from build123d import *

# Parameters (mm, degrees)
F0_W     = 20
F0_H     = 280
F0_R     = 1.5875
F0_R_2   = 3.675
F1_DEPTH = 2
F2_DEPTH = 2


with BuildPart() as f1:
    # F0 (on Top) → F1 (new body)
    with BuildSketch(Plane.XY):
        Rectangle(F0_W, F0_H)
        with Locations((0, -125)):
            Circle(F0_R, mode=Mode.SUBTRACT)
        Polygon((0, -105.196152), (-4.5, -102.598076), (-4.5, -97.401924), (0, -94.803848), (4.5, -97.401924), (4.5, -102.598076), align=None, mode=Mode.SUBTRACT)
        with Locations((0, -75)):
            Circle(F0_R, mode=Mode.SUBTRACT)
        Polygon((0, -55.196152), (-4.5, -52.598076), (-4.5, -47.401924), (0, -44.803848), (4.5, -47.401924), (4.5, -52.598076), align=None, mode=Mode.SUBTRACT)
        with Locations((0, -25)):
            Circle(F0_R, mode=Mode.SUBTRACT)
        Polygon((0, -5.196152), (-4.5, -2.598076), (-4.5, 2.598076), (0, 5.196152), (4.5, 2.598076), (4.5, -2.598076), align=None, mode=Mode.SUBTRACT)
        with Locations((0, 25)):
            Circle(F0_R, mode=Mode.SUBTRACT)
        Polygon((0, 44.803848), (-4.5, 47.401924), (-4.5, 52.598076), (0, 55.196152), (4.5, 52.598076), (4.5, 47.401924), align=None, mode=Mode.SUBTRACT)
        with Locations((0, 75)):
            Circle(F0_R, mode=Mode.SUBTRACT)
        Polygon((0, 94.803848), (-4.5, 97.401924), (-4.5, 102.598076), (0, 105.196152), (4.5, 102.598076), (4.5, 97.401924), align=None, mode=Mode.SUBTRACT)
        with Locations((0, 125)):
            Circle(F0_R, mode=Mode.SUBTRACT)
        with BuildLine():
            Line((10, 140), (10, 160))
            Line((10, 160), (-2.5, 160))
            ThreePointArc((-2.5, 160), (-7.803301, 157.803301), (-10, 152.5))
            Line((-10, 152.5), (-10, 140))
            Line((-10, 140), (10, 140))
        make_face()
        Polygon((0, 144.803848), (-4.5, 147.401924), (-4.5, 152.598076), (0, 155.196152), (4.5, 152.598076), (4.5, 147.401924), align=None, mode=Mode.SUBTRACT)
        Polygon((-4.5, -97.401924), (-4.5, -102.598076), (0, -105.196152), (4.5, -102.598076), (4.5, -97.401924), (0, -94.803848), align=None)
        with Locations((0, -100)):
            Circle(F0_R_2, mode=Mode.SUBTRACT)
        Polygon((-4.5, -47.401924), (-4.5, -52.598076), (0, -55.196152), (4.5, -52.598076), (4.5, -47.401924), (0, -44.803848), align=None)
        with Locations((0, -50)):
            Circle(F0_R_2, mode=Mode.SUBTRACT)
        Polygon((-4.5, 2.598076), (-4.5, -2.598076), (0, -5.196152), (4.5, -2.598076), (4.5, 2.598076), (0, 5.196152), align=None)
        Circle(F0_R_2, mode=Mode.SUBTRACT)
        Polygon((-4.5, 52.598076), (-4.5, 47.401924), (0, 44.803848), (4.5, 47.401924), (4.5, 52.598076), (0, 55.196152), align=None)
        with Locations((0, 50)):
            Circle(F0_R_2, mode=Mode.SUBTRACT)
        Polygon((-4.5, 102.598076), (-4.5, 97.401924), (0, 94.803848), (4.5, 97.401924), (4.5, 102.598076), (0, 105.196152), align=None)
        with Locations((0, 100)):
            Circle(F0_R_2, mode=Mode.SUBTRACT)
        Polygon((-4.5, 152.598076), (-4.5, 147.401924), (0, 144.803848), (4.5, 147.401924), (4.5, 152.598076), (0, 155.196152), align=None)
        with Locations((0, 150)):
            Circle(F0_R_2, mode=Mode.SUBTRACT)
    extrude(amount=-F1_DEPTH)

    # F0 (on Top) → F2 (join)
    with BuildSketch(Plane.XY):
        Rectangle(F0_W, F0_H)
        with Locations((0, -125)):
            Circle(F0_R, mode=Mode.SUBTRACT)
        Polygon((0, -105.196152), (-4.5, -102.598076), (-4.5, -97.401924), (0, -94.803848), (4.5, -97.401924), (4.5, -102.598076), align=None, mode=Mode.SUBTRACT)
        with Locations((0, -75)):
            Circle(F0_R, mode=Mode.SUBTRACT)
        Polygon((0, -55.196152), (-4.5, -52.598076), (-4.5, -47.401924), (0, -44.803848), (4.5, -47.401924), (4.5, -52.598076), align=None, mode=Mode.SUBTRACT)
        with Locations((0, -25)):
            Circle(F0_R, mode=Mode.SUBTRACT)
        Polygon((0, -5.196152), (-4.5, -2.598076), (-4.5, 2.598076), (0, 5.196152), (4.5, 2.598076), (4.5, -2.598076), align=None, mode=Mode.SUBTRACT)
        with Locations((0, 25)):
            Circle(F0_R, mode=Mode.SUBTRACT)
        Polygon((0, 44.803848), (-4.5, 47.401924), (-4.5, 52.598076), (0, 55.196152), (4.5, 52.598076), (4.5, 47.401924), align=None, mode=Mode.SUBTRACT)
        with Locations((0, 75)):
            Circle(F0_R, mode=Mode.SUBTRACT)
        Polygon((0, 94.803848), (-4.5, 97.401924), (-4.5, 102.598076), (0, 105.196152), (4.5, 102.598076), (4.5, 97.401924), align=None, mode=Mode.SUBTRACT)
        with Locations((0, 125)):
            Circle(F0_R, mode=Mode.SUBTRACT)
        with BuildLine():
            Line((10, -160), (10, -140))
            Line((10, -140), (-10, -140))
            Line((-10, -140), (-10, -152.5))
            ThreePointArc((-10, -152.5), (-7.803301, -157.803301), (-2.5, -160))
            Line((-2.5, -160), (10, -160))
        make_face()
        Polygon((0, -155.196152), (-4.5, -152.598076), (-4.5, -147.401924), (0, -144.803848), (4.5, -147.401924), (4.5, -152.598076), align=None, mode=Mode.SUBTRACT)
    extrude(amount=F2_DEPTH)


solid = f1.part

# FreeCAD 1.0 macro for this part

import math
import FreeCAD as App
import Part
import Sketcher

V = App.Vector
Q = App.Units.Quantity

doc = App.newDocument("Part")
body = doc.addObject("PartDesign::Body", "Body")

sketch1 = doc.addObject("Sketcher::SketchObject", "Sketch")
body.addObject(sketch1)
sketch1.AttachmentSupport = (doc.XY_Plane, [""])
sketch1.MapMode = "FlatFace"
sketch1.addGeometry([
    Part.LineSegment(V(-10, -140, 0), V(10, -140, 0)),
    Part.LineSegment(V(10, -140, 0), V(10, 160, 0)),
    Part.LineSegment(V(10, 160, 0), V(-2.5, 160, 0)),
    Part.ArcOfCircle(Part.Circle(V(-2.5, 152.5, 0), V(0, 0, 1), 7.5), math.radians(90), math.radians(180)),
    Part.LineSegment(V(-10, 152.5, 0), V(-10, -140, 0)),
    Part.Circle(V(0, -125, 0), V(0, 0, 1), 1.6),
    Part.Circle(V(0, -100, 0), V(0, 0, 1), 3.7),
    Part.Circle(V(0, -75, 0), V(0, 0, 1), 1.6),
    Part.Circle(V(0, -50, 0), V(0, 0, 1), 3.7),
    Part.Circle(V(0, -25, 0), V(0, 0, 1), 1.6),
    Part.Circle(V(0, 0, 0), V(0, 0, 1), 3.7),
    Part.Circle(V(0, 25, 0), V(0, 0, 1), 1.6),
    Part.Circle(V(0, 50, 0), V(0, 0, 1), 3.7),
    Part.Circle(V(0, 75, 0), V(0, 0, 1), 1.6),
    Part.Circle(V(0, 100, 0), V(0, 0, 1), 3.7),
    Part.Circle(V(0, 125, 0), V(0, 0, 1), 1.6),
    Part.Circle(V(0, 150, 0), V(0, 0, 1), 3.7),
], False)
sketch1.addConstraint([
    Sketcher.Constraint("Coincident", 0, 2, 1, 1),
    Sketcher.Constraint("Coincident", 1, 2, 2, 1),
    Sketcher.Constraint("Tangent", 2, 2, 3, 1),
    Sketcher.Constraint("Tangent", 3, 2, 4, 1),
    Sketcher.Constraint("Coincident", 4, 2, 0, 1),
    Sketcher.Constraint("Horizontal", 0),
    Sketcher.Constraint("Vertical", 1),
    Sketcher.Constraint("Horizontal", 2),
    Sketcher.Constraint("Vertical", 4),
    Sketcher.Constraint("Coincident", 10, 3, -1, 1),
    Sketcher.Constraint("Equal", 5, 7),
    Sketcher.Constraint("Equal", 6, 8),
    Sketcher.Constraint("Equal", 7, 9),
    Sketcher.Constraint("Equal", 8, 10),
    Sketcher.Constraint("Equal", 9, 11),
    Sketcher.Constraint("Equal", 10, 12),
    Sketcher.Constraint("Equal", 11, 13),
    Sketcher.Constraint("Equal", 12, 14),
    Sketcher.Constraint("Equal", 13, 15),
    Sketcher.Constraint("Equal", 14, 16),
    Sketcher.Constraint("Symmetric", 9, 3, 11, 3, -1, 1),
    Sketcher.Constraint("Symmetric", 8, 3, 12, 3, -1, 1),
    Sketcher.Constraint("Symmetric", 7, 3, 13, 3, -1, 1),
    Sketcher.Constraint("Symmetric", 6, 3, 14, 3, -1, 1),
    Sketcher.Constraint("Symmetric", 5, 3, 15, 3, -1, 1),
    Sketcher.Constraint("PointOnObject", 5, 3, -2),
    Sketcher.Constraint("PointOnObject", 6, 3, -2),
    Sketcher.Constraint("PointOnObject", 7, 3, -2),
    Sketcher.Constraint("PointOnObject", 8, 3, -2),
    Sketcher.Constraint("PointOnObject", 9, 3, -2),
    Sketcher.Constraint("PointOnObject", 16, 3, -2),
    Sketcher.Constraint("Radius", 3, Q("7.5 mm")),
    Sketcher.Constraint("Diameter", 6, Q("7.35 mm")),
    Sketcher.Constraint("DistanceX", 0, 1, 0, 2, Q("20 mm")),
    Sketcher.Constraint("DistanceY", 1, 1, 1, 2, Q("300 mm")),
    Sketcher.Constraint("Diameter", 5, Q("3.175 mm")),
    Sketcher.Constraint("DistanceY", 5, 3, -1, 1, Q("125 mm")),
    Sketcher.Constraint("DistanceY", 6, 3, -1, 1, Q("100 mm")),
    Sketcher.Constraint("DistanceY", 7, 3, -1, 1, Q("75 mm")),
    Sketcher.Constraint("DistanceY", 8, 3, -1, 1, Q("50 mm")),
    Sketcher.Constraint("DistanceY", 9, 3, -1, 1, Q("25 mm")),
    Sketcher.Constraint("DistanceY", -1, 1, 16, 3, Q("150 mm")),
    Sketcher.Constraint("DistanceX", -1, 1, 0, 2, Q("10 mm")),
    Sketcher.Constraint("DistanceY", 0, 2, -1, 1, Q("140 mm")),
])
pad1 = doc.addObject("PartDesign::Pad", "Pad")
body.addObject(pad1)
pad1.Profile = sketch1
pad1.Length = 2
pad1.Reversed = True

sketch2 = doc.addObject("Sketcher::SketchObject", "Sketch001")
body.addObject(sketch2)
sketch2.AttachmentSupport = (doc.XY_Plane, [""])
sketch2.MapMode = "FlatFace"
sketch2.addGeometry([
    Part.LineSegment(V(-10, 140, 0), V(-10, -152.5, 0)),
    Part.ArcOfCircle(Part.Circle(V(-2.5, -152.5, 0), V(0, 0, 1), 7.5), math.radians(180), math.radians(270)),
    Part.LineSegment(V(-2.5, -160, 0), V(10, -160, 0)),
    Part.LineSegment(V(10, -160, 0), V(10, 140, 0)),
    Part.LineSegment(V(10, 140, 0), V(-10, 140, 0)),
    Part.LineSegment(V(4.5, -152.6, 0), V(0, -155.2, 0)),
    Part.LineSegment(V(0, -155.2, 0), V(-4.5, -152.6, 0)),
    Part.LineSegment(V(-4.5, -152.6, 0), V(-4.5, -147.4, 0)),
    Part.LineSegment(V(-4.5, -147.4, 0), V(0, -144.8, 0)),
    Part.LineSegment(V(0, -144.8, 0), V(4.5, -147.4, 0)),
    Part.LineSegment(V(4.5, -147.4, 0), V(4.5, -152.6, 0)),
    Part.Circle(V(0, -125, 0), V(0, 0, 1), 1.6),
    Part.LineSegment(V(4.5, -102.6, 0), V(0, -105.2, 0)),
    Part.LineSegment(V(0, -105.2, 0), V(-4.5, -102.6, 0)),
    Part.LineSegment(V(-4.5, -102.6, 0), V(-4.5, -97.4, 0)),
    Part.LineSegment(V(-4.5, -97.4, 0), V(0, -94.8, 0)),
    Part.LineSegment(V(0, -94.8, 0), V(4.5, -97.4, 0)),
    Part.LineSegment(V(4.5, -97.4, 0), V(4.5, -102.6, 0)),
    Part.Circle(V(0, -75, 0), V(0, 0, 1), 1.6),
    Part.LineSegment(V(4.5, -52.6, 0), V(0, -55.2, 0)),
    Part.LineSegment(V(0, -55.2, 0), V(-4.5, -52.6, 0)),
    Part.LineSegment(V(-4.5, -52.6, 0), V(-4.5, -47.4, 0)),
    Part.LineSegment(V(-4.5, -47.4, 0), V(0, -44.8, 0)),
    Part.LineSegment(V(0, -44.8, 0), V(4.5, -47.4, 0)),
    Part.LineSegment(V(4.5, -47.4, 0), V(4.5, -52.6, 0)),
    Part.Circle(V(0, -25, 0), V(0, 0, 1), 1.6),
    Part.LineSegment(V(4.5, -2.6, 0), V(0, -5.2, 0)),
    Part.LineSegment(V(0, -5.2, 0), V(-4.5, -2.6, 0)),
    Part.LineSegment(V(-4.5, -2.6, 0), V(-4.5, 2.6, 0)),
    Part.LineSegment(V(-4.5, 2.6, 0), V(0, 5.2, 0)),
    Part.LineSegment(V(0, 5.2, 0), V(4.5, 2.6, 0)),
    Part.LineSegment(V(4.5, 2.6, 0), V(4.5, -2.6, 0)),
    Part.Circle(V(0, 25, 0), V(0, 0, 1), 1.6),
    Part.LineSegment(V(4.5, 47.4, 0), V(0, 44.8, 0)),
    Part.LineSegment(V(0, 44.8, 0), V(-4.5, 47.4, 0)),
    Part.LineSegment(V(-4.5, 47.4, 0), V(-4.5, 52.6, 0)),
    Part.LineSegment(V(-4.5, 52.6, 0), V(0, 55.2, 0)),
    Part.LineSegment(V(0, 55.2, 0), V(4.5, 52.6, 0)),
    Part.LineSegment(V(4.5, 52.6, 0), V(4.5, 47.4, 0)),
    Part.Circle(V(0, 75, 0), V(0, 0, 1), 1.6),
    Part.LineSegment(V(4.5, 97.4, 0), V(0, 94.8, 0)),
    Part.LineSegment(V(0, 94.8, 0), V(-4.5, 97.4, 0)),
    Part.LineSegment(V(-4.5, 97.4, 0), V(-4.5, 102.6, 0)),
    Part.LineSegment(V(-4.5, 102.6, 0), V(0, 105.2, 0)),
    Part.LineSegment(V(0, 105.2, 0), V(4.5, 102.6, 0)),
    Part.LineSegment(V(4.5, 102.6, 0), V(4.5, 97.4, 0)),
    Part.Circle(V(0, 125, 0), V(0, 0, 1), 1.6),
], False)
sketch2.addConstraint([
    Sketcher.Constraint("Tangent", 0, 2, 1, 1),
    Sketcher.Constraint("Tangent", 1, 2, 2, 1),
    Sketcher.Constraint("Coincident", 2, 2, 3, 1),
    Sketcher.Constraint("Coincident", 3, 2, 4, 1),
    Sketcher.Constraint("Coincident", 4, 2, 0, 1),
    Sketcher.Constraint("Coincident", 5, 2, 6, 1),
    Sketcher.Constraint("Coincident", 6, 2, 7, 1),
    Sketcher.Constraint("Coincident", 7, 2, 8, 1),
    Sketcher.Constraint("Coincident", 8, 2, 9, 1),
    Sketcher.Constraint("Coincident", 9, 2, 10, 1),
    Sketcher.Constraint("Coincident", 10, 2, 5, 1),
    Sketcher.Constraint("Coincident", 12, 2, 13, 1),
    Sketcher.Constraint("Coincident", 13, 2, 14, 1),
    Sketcher.Constraint("Coincident", 14, 2, 15, 1),
    Sketcher.Constraint("Coincident", 15, 2, 16, 1),
    Sketcher.Constraint("Coincident", 16, 2, 17, 1),
    Sketcher.Constraint("Coincident", 17, 2, 12, 1),
    Sketcher.Constraint("Coincident", 19, 2, 20, 1),
    Sketcher.Constraint("Coincident", 20, 2, 21, 1),
    Sketcher.Constraint("Coincident", 21, 2, 22, 1),
    Sketcher.Constraint("Coincident", 22, 2, 23, 1),
    Sketcher.Constraint("Coincident", 23, 2, 24, 1),
    Sketcher.Constraint("Coincident", 24, 2, 19, 1),
    Sketcher.Constraint("Coincident", 26, 2, 27, 1),
    Sketcher.Constraint("Coincident", 27, 2, 28, 1),
    Sketcher.Constraint("Coincident", 28, 2, 29, 1),
    Sketcher.Constraint("Coincident", 29, 2, 30, 1),
    Sketcher.Constraint("Coincident", 30, 2, 31, 1),
    Sketcher.Constraint("Coincident", 31, 2, 26, 1),
    Sketcher.Constraint("Coincident", 33, 2, 34, 1),
    Sketcher.Constraint("Coincident", 34, 2, 35, 1),
    Sketcher.Constraint("Coincident", 35, 2, 36, 1),
    Sketcher.Constraint("Coincident", 36, 2, 37, 1),
    Sketcher.Constraint("Coincident", 37, 2, 38, 1),
    Sketcher.Constraint("Coincident", 38, 2, 33, 1),
    Sketcher.Constraint("Coincident", 40, 2, 41, 1),
    Sketcher.Constraint("Coincident", 41, 2, 42, 1),
    Sketcher.Constraint("Coincident", 42, 2, 43, 1),
    Sketcher.Constraint("Coincident", 43, 2, 44, 1),
    Sketcher.Constraint("Coincident", 44, 2, 45, 1),
    Sketcher.Constraint("Coincident", 45, 2, 40, 1),
    Sketcher.Constraint("Vertical", 0),
    Sketcher.Constraint("Horizontal", 2),
    Sketcher.Constraint("Vertical", 3),
    Sketcher.Constraint("Horizontal", 4),
    Sketcher.Constraint("Vertical", 7),
    Sketcher.Constraint("Vertical", 10),
    Sketcher.Constraint("Vertical", 14),
    Sketcher.Constraint("Vertical", 17),
    Sketcher.Constraint("Vertical", 21),
    Sketcher.Constraint("Vertical", 24),
    Sketcher.Constraint("Vertical", 28),
    Sketcher.Constraint("Vertical", 31),
    Sketcher.Constraint("Vertical", 35),
    Sketcher.Constraint("Vertical", 38),
    Sketcher.Constraint("Vertical", 42),
    Sketcher.Constraint("Vertical", 45),
    Sketcher.Constraint("Equal", 11, 18),
    Sketcher.Constraint("Equal", 18, 25),
    Sketcher.Constraint("Equal", 25, 32),
    Sketcher.Constraint("Equal", 32, 39),
    Sketcher.Constraint("Equal", 39, 46),
    Sketcher.Constraint("Symmetric", 25, 3, 32, 3, -1, 1),
    Sketcher.Constraint("Symmetric", 18, 3, 39, 3, -1, 1),
    Sketcher.Constraint("Symmetric", 11, 3, 46, 3, -1, 1),
    Sketcher.Constraint("Symmetric", 26, 2, 29, 2, -1, 1),
    Sketcher.Constraint("Symmetric", 27, 2, 30, 2, -1, 1),
    Sketcher.Constraint("Symmetric", 22, 2, 33, 2, -1, 1),
    Sketcher.Constraint("Symmetric", 23, 2, 34, 2, -1, 1),
    Sketcher.Constraint("Symmetric", 19, 2, 36, 2, -1, 1),
    Sketcher.Constraint("Symmetric", 20, 2, 37, 2, -1, 1),
    Sketcher.Constraint("Symmetric", 15, 2, 40, 2, -1, 1),
    Sketcher.Constraint("Symmetric", 16, 2, 41, 2, -1, 1),
    Sketcher.Constraint("Symmetric", 12, 2, 43, 2, -1, 1),
    Sketcher.Constraint("Symmetric", 13, 2, 44, 2, -1, 1),
    Sketcher.Constraint("Symmetric", 7, 2, 9, 2, -2),
    Sketcher.Constraint("Symmetric", 14, 2, 16, 2, -2),
    Sketcher.Constraint("Symmetric", 21, 2, 23, 2, -2),
    Sketcher.Constraint("PointOnObject", 11, 3, -2),
    Sketcher.Constraint("PointOnObject", 18, 3, -2),
    Sketcher.Constraint("PointOnObject", 25, 3, -2),
    Sketcher.Constraint("PointOnObject", 5, 2, -2),
    Sketcher.Constraint("PointOnObject", 8, 2, -2),
    Sketcher.Constraint("PointOnObject", 12, 2, -2),
    Sketcher.Constraint("PointOnObject", 15, 2, -2),
    Sketcher.Constraint("PointOnObject", 19, 2, -2),
    Sketcher.Constraint("PointOnObject", 22, 2, -2),
    Sketcher.Constraint("PointOnObject", 26, 2, -2),
    Sketcher.Constraint("Parallel", 5, 8),
    Sketcher.Constraint("Parallel", 6, 9),
    Sketcher.Constraint("Parallel", 8, 12),
    Sketcher.Constraint("Parallel", 9, 13),
    Sketcher.Constraint("Parallel", 12, 15),
    Sketcher.Constraint("Parallel", 15, 19),
    Sketcher.Constraint("Parallel", 16, 20),
    Sketcher.Constraint("Parallel", 19, 22),
    Sketcher.Constraint("Parallel", 22, 26),
    Sketcher.Constraint("Parallel", 23, 27),
    Sketcher.Constraint("Parallel", 26, 29),
    Sketcher.Constraint("Parallel", 29, 33),
    Sketcher.Constraint("Parallel", 33, 36),
    Sketcher.Constraint("Parallel", 36, 40),
    Sketcher.Constraint("Parallel", 40, 43),
    Sketcher.Constraint("Vertical", 7, 2, 13, 2),
    Sketcher.Constraint("Vertical", 14, 2, 20, 2),
    Sketcher.Constraint("Vertical", 21, 2, 27, 2),
    Sketcher.Constraint("Equal", 10, 14),
    Sketcher.Constraint("Equal", 17, 21),
    Sketcher.Constraint("Equal", 24, 28),
    Sketcher.Constraint("Radius", 1, Q("7.5 mm")),
    Sketcher.Constraint("DistanceX", 4, 2, 4, 1, Q("20 mm")),
    Sketcher.Constraint("DistanceY", 3, 1, 3, 2, Q("300 mm")),
    Sketcher.Constraint("Angle", 5, Q("-150.000002 deg")),
    Sketcher.Constraint("Diameter", 11, Q("3.175 mm")),
    Sketcher.Constraint("DistanceY", 11, 3, -1, 1, Q("125 mm")),
    Sketcher.Constraint("DistanceY", 18, 3, -1, 1, Q("75 mm")),
    Sketcher.Constraint("DistanceY", 25, 3, -1, 1, Q("25 mm")),
    Sketcher.Constraint("DistanceX", 0, 2, -1, 1, Q("10 mm")),
    Sketcher.Constraint("DistanceY", 1, 2, -1, 1, Q("160 mm")),
    Sketcher.Constraint("DistanceX", 6, 2, 1, 3, Q("2 mm")),
    Sketcher.Constraint("DistanceY", 7, 1, 7, 2, Q("5.196152 mm")),
    Sketcher.Constraint("DistanceY", 12, 2, -1, 1, Q("105.196152 mm")),
    Sketcher.Constraint("DistanceY", 19, 2, -1, 1, Q("55.196152 mm")),
    Sketcher.Constraint("DistanceY", 5, 2, 1, 3, Q("2.696152 mm")),
])
pad2 = doc.addObject("PartDesign::Pad", "Pad001")
body.addObject(pad2)
pad2.Profile = sketch2
pad2.Length = 2

doc.recompute()
